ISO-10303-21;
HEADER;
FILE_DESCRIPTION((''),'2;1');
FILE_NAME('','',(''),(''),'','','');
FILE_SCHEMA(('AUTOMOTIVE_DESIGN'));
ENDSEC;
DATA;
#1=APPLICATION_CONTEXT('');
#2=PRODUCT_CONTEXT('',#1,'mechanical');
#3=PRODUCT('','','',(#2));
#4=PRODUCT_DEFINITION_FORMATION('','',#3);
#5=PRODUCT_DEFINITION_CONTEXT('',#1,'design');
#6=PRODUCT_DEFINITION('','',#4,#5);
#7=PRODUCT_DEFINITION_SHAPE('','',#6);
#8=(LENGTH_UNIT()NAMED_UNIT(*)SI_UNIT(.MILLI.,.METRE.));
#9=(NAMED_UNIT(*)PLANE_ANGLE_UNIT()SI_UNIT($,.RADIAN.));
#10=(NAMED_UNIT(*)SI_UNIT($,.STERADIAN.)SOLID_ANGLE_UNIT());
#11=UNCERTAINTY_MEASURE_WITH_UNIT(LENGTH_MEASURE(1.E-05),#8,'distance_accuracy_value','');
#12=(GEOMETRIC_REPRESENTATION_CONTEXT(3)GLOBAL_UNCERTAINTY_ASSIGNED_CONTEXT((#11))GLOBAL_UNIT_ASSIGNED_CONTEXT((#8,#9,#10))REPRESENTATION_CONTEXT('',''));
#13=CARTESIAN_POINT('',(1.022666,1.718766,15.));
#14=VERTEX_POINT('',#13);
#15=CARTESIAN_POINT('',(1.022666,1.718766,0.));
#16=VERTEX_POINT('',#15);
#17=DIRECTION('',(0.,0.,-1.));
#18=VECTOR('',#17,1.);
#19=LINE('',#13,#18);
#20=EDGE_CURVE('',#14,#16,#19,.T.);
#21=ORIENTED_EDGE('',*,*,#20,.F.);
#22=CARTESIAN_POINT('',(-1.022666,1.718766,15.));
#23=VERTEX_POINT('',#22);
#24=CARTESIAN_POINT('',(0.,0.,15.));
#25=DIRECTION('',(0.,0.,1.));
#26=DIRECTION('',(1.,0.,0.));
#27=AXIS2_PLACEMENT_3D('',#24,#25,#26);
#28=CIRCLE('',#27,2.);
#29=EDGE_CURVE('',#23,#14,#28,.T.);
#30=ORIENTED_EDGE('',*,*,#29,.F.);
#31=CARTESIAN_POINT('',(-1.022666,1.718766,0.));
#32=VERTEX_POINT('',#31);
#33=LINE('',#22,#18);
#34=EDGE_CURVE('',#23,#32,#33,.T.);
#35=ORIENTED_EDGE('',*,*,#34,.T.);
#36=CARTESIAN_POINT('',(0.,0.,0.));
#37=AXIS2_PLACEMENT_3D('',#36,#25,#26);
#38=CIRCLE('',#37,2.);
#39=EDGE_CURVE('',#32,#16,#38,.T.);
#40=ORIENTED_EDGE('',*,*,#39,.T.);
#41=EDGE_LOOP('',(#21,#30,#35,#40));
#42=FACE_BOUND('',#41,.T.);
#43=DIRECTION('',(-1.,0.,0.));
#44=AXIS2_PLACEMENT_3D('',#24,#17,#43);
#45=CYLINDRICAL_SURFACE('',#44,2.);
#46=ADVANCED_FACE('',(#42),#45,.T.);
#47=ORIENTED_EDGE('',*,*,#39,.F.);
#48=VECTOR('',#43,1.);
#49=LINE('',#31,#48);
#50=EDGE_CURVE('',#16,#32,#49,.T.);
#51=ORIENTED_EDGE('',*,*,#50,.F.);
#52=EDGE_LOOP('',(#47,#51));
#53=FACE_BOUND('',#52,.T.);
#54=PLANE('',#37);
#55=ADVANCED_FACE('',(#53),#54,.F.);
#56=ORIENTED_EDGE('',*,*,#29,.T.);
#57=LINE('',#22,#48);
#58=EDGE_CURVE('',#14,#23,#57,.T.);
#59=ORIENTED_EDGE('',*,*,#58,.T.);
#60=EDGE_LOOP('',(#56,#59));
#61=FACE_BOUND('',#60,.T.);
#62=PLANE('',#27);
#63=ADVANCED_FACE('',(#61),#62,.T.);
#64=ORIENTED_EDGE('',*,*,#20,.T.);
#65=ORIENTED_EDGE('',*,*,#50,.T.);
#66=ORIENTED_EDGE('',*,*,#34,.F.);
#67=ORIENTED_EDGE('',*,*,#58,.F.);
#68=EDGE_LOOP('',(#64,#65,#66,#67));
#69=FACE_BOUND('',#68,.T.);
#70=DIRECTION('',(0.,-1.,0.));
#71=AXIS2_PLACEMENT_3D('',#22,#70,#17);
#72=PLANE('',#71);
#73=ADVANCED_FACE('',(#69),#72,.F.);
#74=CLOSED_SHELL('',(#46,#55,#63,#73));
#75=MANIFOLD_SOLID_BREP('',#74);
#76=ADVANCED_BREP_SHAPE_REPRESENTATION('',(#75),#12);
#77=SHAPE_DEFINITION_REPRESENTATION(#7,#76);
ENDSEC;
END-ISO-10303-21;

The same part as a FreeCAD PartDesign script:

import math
import FreeCAD as App
import Part
import Sketcher

V = App.Vector

doc = App.newDocument("Part")
body = doc.addObject("PartDesign::Body", "Body")

# Sketch on XY plane
sketch1 = body.newObject("Sketcher::SketchObject", "Sketch")
sketch1.AttachmentSupport = (doc.getObject("XY_Plane"), [""])
sketch1.MapMode = "FlatFace"
sketch1.addGeometry(Part.LineSegment(V(1, 1.7, 0), V(-1, 1.7, 0)), False)
sketch1.addGeometry(Part.ArcOfCircle(Part.Circle(V(0, 0, 0), V(0, 0, 1), 2), math.radians(121), math.radians(419)), False)
sketch1.addConstraint(Sketcher.Constraint("Coincident", 0, 1, 1, 2))
sketch1.addConstraint(Sketcher.Constraint("Coincident", 1, 1, 0, 2))
sketch1.addConstraint(Sketcher.Constraint("Horizontal", 0))
sketch1.addConstraint(Sketcher.Constraint("Coincident", 1, 3, -1, 1))
sketch1.addConstraint(Sketcher.Constraint("Radius", 1, 2.0))
sketch1.addConstraint(Sketcher.Constraint("DistanceX", 0, 2, 0, 1, 2.045331))
pad1 = body.newObject("PartDesign::Pad", "Pad")
pad1.Profile = sketch1
pad1.Length = 15

doc.recompute()
